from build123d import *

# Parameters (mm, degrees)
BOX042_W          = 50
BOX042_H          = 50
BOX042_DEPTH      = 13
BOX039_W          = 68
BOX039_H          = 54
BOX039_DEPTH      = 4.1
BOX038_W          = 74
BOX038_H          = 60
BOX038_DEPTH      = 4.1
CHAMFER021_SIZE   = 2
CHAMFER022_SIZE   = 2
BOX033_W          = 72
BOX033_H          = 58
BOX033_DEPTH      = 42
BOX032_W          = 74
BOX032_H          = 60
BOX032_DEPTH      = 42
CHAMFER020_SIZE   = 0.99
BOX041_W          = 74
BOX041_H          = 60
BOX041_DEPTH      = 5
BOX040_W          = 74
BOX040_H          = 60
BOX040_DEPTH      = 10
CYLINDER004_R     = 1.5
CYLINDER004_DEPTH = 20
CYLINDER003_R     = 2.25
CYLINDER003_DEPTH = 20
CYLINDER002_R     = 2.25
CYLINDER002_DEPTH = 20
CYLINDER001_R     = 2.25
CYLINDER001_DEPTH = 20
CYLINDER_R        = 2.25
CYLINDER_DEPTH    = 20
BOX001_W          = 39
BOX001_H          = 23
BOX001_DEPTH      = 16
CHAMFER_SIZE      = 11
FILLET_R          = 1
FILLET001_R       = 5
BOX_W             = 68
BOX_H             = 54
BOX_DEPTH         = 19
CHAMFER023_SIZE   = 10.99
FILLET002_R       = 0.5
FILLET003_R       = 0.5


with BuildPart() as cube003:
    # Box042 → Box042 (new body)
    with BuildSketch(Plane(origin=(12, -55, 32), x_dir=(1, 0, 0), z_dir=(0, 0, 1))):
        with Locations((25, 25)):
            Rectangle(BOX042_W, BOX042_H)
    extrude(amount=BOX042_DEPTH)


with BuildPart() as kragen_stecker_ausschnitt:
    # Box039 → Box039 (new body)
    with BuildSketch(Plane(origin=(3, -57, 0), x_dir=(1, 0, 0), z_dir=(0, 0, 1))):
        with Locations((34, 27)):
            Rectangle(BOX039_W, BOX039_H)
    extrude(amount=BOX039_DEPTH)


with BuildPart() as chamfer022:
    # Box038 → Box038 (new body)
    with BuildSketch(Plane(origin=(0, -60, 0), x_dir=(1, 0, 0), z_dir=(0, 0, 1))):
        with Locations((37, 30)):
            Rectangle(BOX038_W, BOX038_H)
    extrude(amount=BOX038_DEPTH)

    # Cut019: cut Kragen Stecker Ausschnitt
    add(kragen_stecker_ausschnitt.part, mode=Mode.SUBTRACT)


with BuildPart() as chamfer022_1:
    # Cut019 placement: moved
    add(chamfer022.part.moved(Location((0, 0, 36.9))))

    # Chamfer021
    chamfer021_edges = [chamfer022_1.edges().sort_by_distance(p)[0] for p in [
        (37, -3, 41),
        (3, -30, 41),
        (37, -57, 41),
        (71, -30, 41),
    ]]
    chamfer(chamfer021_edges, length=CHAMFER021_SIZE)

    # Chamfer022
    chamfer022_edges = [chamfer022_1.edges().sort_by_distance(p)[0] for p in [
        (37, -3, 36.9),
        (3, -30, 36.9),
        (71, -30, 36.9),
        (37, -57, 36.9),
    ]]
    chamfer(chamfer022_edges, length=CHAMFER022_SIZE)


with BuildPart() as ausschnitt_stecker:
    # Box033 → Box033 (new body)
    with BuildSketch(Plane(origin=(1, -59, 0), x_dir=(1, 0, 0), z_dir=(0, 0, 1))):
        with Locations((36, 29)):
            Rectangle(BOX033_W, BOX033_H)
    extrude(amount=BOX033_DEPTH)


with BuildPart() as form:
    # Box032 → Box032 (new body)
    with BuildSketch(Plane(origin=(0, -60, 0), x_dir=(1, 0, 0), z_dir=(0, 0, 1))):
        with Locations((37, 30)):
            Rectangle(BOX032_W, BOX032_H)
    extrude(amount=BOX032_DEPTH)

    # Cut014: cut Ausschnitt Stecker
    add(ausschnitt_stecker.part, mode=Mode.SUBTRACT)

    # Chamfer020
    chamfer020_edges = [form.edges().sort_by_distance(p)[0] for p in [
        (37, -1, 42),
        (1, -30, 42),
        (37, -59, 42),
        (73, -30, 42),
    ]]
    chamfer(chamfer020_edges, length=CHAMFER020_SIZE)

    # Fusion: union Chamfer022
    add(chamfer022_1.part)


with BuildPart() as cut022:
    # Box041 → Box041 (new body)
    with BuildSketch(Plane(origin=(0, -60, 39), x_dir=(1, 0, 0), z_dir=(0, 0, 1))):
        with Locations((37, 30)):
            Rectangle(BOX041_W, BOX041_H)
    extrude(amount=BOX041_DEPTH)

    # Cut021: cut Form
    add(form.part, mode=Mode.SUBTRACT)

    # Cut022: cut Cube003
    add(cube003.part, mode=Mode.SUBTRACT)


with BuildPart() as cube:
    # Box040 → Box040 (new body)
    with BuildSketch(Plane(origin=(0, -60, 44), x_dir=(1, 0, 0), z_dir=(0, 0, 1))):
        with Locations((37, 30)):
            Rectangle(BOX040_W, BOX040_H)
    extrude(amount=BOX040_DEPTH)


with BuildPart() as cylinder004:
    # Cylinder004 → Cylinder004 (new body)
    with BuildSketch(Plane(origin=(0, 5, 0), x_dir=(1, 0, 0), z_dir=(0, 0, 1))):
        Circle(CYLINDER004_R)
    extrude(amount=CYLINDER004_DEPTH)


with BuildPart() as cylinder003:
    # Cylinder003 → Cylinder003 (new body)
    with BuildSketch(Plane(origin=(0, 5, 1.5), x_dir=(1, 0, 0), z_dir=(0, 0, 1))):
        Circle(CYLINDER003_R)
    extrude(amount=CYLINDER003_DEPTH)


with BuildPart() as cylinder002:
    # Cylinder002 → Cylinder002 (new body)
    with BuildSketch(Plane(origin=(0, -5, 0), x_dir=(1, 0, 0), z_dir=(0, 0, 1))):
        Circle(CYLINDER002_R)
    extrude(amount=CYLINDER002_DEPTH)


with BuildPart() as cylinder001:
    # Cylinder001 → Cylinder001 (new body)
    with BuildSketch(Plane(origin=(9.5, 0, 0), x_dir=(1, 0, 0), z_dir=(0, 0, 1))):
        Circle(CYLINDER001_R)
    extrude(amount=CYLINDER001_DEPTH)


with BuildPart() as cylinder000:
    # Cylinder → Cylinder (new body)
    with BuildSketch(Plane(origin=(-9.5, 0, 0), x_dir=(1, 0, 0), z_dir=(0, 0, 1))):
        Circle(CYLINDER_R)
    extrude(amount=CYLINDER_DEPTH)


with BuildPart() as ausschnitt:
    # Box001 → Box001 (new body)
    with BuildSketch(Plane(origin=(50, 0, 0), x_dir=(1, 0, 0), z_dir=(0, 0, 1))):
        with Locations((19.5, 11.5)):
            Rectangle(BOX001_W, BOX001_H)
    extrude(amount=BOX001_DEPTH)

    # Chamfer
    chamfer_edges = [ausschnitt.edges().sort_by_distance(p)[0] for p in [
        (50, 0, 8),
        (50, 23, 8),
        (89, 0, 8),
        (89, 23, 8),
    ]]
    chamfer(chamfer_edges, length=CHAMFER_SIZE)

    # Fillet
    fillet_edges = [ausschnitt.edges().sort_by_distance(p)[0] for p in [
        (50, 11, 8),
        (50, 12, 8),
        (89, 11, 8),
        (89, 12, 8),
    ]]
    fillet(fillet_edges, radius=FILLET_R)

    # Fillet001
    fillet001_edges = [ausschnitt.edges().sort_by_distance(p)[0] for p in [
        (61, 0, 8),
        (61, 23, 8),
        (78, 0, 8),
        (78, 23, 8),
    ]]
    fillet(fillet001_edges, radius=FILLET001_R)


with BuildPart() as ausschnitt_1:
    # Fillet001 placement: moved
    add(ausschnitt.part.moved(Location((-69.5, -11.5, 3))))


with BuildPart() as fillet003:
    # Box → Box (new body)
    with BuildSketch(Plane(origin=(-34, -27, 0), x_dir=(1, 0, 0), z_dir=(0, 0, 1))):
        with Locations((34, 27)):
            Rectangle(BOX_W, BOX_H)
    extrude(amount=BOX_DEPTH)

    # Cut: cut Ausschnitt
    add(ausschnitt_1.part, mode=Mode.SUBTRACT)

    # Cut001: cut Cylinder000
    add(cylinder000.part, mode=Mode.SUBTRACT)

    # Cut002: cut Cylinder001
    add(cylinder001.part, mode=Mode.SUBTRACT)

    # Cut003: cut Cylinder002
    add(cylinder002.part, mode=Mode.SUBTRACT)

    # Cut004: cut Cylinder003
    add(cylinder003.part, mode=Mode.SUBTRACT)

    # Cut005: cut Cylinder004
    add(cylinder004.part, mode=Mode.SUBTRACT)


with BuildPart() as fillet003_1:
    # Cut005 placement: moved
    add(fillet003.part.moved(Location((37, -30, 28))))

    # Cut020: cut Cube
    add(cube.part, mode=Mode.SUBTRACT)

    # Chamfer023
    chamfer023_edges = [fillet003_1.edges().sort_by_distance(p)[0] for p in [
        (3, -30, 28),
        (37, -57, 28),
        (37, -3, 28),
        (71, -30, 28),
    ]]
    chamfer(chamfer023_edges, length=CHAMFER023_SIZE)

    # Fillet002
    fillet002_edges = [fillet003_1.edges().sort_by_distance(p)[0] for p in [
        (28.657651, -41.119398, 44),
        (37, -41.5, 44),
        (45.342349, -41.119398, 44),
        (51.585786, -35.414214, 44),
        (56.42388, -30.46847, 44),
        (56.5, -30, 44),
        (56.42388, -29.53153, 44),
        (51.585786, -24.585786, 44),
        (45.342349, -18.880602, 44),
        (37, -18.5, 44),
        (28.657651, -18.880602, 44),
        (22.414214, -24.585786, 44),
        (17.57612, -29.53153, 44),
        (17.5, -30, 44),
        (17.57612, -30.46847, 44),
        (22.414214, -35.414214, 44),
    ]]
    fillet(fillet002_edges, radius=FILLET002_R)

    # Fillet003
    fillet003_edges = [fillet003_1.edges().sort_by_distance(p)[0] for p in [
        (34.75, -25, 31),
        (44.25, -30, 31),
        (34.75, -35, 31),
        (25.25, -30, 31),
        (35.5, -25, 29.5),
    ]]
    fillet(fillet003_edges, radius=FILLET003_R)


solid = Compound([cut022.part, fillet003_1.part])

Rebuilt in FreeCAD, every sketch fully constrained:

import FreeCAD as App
import Part
import Sketcher

V = App.Vector
Q = App.Units.Quantity


def edges_at(feature, points):
    """Names of the edges that pass closest to the given points."""
    edges = feature.Shape.Edges
    near = lambda p: min(range(len(edges)), key=lambda i: edges[i].distToShape(Part.Vertex(*p))[0])
    return sorted({f"Edge{near(p) + 1}" for p in points})

doc = App.newDocument("Part")
body = doc.addObject("PartDesign::Body", "Body")

sketch1 = body.newObject("Sketcher::SketchObject", "Sketch")
sketch1.AttachmentSupport = (doc.getObject("XY_Plane"), [""])
sketch1.MapMode = "FlatFace"
sketch1.AttachmentOffset = App.Placement(V(0, 0, 32), App.Rotation())
sketch1.addGeometry([
    Part.LineSegment(V(12, -5, 0), V(12, -55, 0)),
    Part.LineSegment(V(12, -55, 0), V(62, -55, 0)),
    Part.LineSegment(V(62, -55, 0), V(62, -5, 0)),
    Part.LineSegment(V(62, -5, 0), V(12, -5, 0)),
], False)
sketch1.addConstraint([
    Sketcher.Constraint("Coincident", 0, 2, 1, 1),
    Sketcher.Constraint("Coincident", 1, 2, 2, 1),
    Sketcher.Constraint("Coincident", 2, 2, 3, 1),
    Sketcher.Constraint("Coincident", 3, 2, 0, 1),
    Sketcher.Constraint("Vertical", 0),
    Sketcher.Constraint("Horizontal", 1),
    Sketcher.Constraint("Vertical", 2),
    Sketcher.Constraint("Horizontal", 3),
    Sketcher.Constraint("Equal", 3, 0),
    Sketcher.Constraint("DistanceX", 1, 1, 1, 2, Q("50 mm")),
    Sketcher.Constraint("DistanceX", -1, 1, 0, 2, Q("12 mm")),
    Sketcher.Constraint("DistanceY", 0, 2, -1, 1, Q("55 mm")),
])
pad1 = body.newObject("PartDesign::Pad", "Pad")
pad1.Profile = sketch1
pad1.Length = 13
body2 = doc.addObject("PartDesign::Body", "Body001")

sketch2 = body2.newObject("Sketcher::SketchObject", "Sketch001")
sketch2.AttachmentSupport = (doc.getObject("XY_Plane001"), [""])
sketch2.MapMode = "FlatFace"
sketch2.addGeometry([
    Part.LineSegment(V(3, -3, 0), V(3, -57, 0)),
    Part.LineSegment(V(3, -57, 0), V(71, -57, 0)),
    Part.LineSegment(V(71, -57, 0), V(71, -3, 0)),
    Part.LineSegment(V(71, -3, 0), V(3, -3, 0)),
], False)
sketch2.addConstraint([
    Sketcher.Constraint("Coincident", 0, 2, 1, 1),
    Sketcher.Constraint("Coincident", 1, 2, 2, 1),
    Sketcher.Constraint("Coincident", 2, 2, 3, 1),
    Sketcher.Constraint("Coincident", 3, 2, 0, 1),
    Sketcher.Constraint("Vertical", 0),
    Sketcher.Constraint("Horizontal", 1),
    Sketcher.Constraint("Vertical", 2),
    Sketcher.Constraint("Horizontal", 3),
    Sketcher.Constraint("DistanceX", 1, 1, 1, 2, Q("68 mm")),
    Sketcher.Constraint("DistanceY", 0, 2, 0, 1, Q("54 mm")),
    Sketcher.Constraint("DistanceX", -1, 1, 0, 2, Q("3 mm")),
    Sketcher.Constraint("DistanceY", 0, 2, -1, 1, Q("57 mm")),
])
pad2 = body2.newObject("PartDesign::Pad", "Pad001")
pad2.Profile = sketch2
pad2.Length = 4.1
body3 = doc.addObject("PartDesign::Body", "Body002")

sketch3 = body3.newObject("Sketcher::SketchObject", "Sketch002")
sketch3.AttachmentSupport = (doc.getObject("XY_Plane002"), [""])
sketch3.MapMode = "FlatFace"
sketch3.addGeometry([
    Part.LineSegment(V(0, 0, 0), V(0, -60, 0)),
    Part.LineSegment(V(0, -60, 0), V(74, -60, 0)),
    Part.LineSegment(V(74, -60, 0), V(74, 0, 0)),
    Part.LineSegment(V(74, 0, 0), V(0, 0, 0)),
], False)
sketch3.addConstraint([
    Sketcher.Constraint("Coincident", 0, 2, 1, 1),
    Sketcher.Constraint("Coincident", 1, 2, 2, 1),
    Sketcher.Constraint("Coincident", 2, 2, 3, 1),
    Sketcher.Constraint("Coincident", 3, 2, 0, 1),
    Sketcher.Constraint("Vertical", 0),
    Sketcher.Constraint("Horizontal", 1),
    Sketcher.Constraint("Vertical", 2),
    Sketcher.Constraint("Horizontal", 3),
    Sketcher.Constraint("Coincident", 3, 2, -1, 1),
    Sketcher.Constraint("DistanceX", 1, 1, 1, 2, Q("74 mm")),
    Sketcher.Constraint("DistanceY", 0, 2, 0, 1, Q("60 mm")),
])
pad3 = body3.newObject("PartDesign::Pad", "Pad002")
pad3.Profile = sketch3
pad3.Length = 4.1
doc.recompute()

boolean = body3.newObject("PartDesign::Boolean", "Boolean")
boolean.Type = "Cut"
boolean.addObjects([body2])
body4 = doc.addObject("PartDesign::Body", "Body003")
doc.recompute()

body3.Placement = App.Placement(V(0, 0, 36.9), App.Rotation(V(0, 0, 1), 0))
boolean2 = body4.newObject("PartDesign::Boolean", "Boolean001")
boolean2.Type = "Fuse"
boolean2.addObjects([body3])
doc.recompute()

chamfer = body4.newObject("PartDesign::Chamfer", "Chamfer")
chamfer.Base = (boolean2, edges_at(boolean2, [
    (37, -3, 41),
    (3, -30, 41),
    (37, -57, 41),
    (71, -30, 41),
]))
chamfer.Size = 2
doc.recompute()

chamfer2 = body4.newObject("PartDesign::Chamfer", "Chamfer001")
chamfer2.Base = (chamfer, edges_at(chamfer, [
    (37, -3, 36.9),
    (3, -30, 36.9),
    (71, -30, 36.9),
    (37, -57, 36.9),
]))
chamfer2.Size = 2
body5 = doc.addObject("PartDesign::Body", "Body004")

sketch4 = body5.newObject("Sketcher::SketchObject", "Sketch003")
sketch4.AttachmentSupport = (doc.getObject("XY_Plane004"), [""])
sketch4.MapMode = "FlatFace"
sketch4.addGeometry([
    Part.LineSegment(V(1, -1, 0), V(1, -59, 0)),
    Part.LineSegment(V(1, -59, 0), V(73, -59, 0)),
    Part.LineSegment(V(73, -59, 0), V(73, -1, 0)),
    Part.LineSegment(V(73, -1, 0), V(1, -1, 0)),
], False)
sketch4.addConstraint([
    Sketcher.Constraint("Coincident", 0, 2, 1, 1),
    Sketcher.Constraint("Coincident", 1, 2, 2, 1),
    Sketcher.Constraint("Coincident", 2, 2, 3, 1),
    Sketcher.Constraint("Coincident", 3, 2, 0, 1),
    Sketcher.Constraint("Vertical", 0),
    Sketcher.Constraint("Horizontal", 1),
    Sketcher.Constraint("Vertical", 2),
    Sketcher.Constraint("Horizontal", 3),
    Sketcher.Constraint("DistanceX", 1, 1, 1, 2, Q("72 mm")),
    Sketcher.Constraint("DistanceY", 0, 2, 0, 1, Q("58 mm")),
    Sketcher.Constraint("DistanceX", -1, 1, 0, 2, Q("1 mm")),
    Sketcher.Constraint("DistanceY", 0, 2, -1, 1, Q("59 mm")),
])
pad4 = body5.newObject("PartDesign::Pad", "Pad003")
pad4.Profile = sketch4
pad4.Length = 42
body6 = doc.addObject("PartDesign::Body", "Body005")

sketch5 = body6.newObject("Sketcher::SketchObject", "Sketch004")
sketch5.AttachmentSupport = (doc.getObject("XY_Plane005"), [""])
sketch5.MapMode = "FlatFace"
sketch5.addGeometry([
    Part.LineSegment(V(0, 0, 0), V(0, -60, 0)),
    Part.LineSegment(V(0, -60, 0), V(74, -60, 0)),
    Part.LineSegment(V(74, -60, 0), V(74, 0, 0)),
    Part.LineSegment(V(74, 0, 0), V(0, 0, 0)),
], False)
sketch5.addConstraint([
    Sketcher.Constraint("Coincident", 0, 2, 1, 1),
    Sketcher.Constraint("Coincident", 1, 2, 2, 1),
    Sketcher.Constraint("Coincident", 2, 2, 3, 1),
    Sketcher.Constraint("Coincident", 3, 2, 0, 1),
    Sketcher.Constraint("Vertical", 0),
    Sketcher.Constraint("Horizontal", 1),
    Sketcher.Constraint("Vertical", 2),
    Sketcher.Constraint("Horizontal", 3),
    Sketcher.Constraint("Coincident", 3, 2, -1, 1),
    Sketcher.Constraint("DistanceX", 1, 1, 1, 2, Q("74 mm")),
    Sketcher.Constraint("DistanceY", 0, 2, 0, 1, Q("60 mm")),
])
pad5 = body6.newObject("PartDesign::Pad", "Pad004")
pad5.Profile = sketch5
pad5.Length = 42
doc.recompute()

boolean3 = body6.newObject("PartDesign::Boolean", "Boolean002")
boolean3.Type = "Cut"
boolean3.addObjects([body5])
doc.recompute()

chamfer3 = body6.newObject("PartDesign::Chamfer", "Chamfer002")
chamfer3.Base = (boolean3, edges_at(boolean3, [
    (37, -1, 42),
    (1, -30, 42),
    (37, -59, 42),
    (73, -30, 42),
]))
chamfer3.Size = 0.99
doc.recompute()

boolean4 = body6.newObject("PartDesign::Boolean", "Boolean003")
boolean4.Type = "Fuse"
boolean4.addObjects([body4])
body7 = doc.addObject("PartDesign::Body", "Body006")

sketch6 = body7.newObject("Sketcher::SketchObject", "Sketch005")
sketch6.AttachmentSupport = (doc.getObject("XY_Plane006"), [""])
sketch6.MapMode = "FlatFace"
sketch6.AttachmentOffset = App.Placement(V(0, 0, 39), App.Rotation())
sketch6.addGeometry([
    Part.LineSegment(V(0, 0, 0), V(0, -60, 0)),
    Part.LineSegment(V(0, -60, 0), V(74, -60, 0)),
    Part.LineSegment(V(74, -60, 0), V(74, 0, 0)),
    Part.LineSegment(V(74, 0, 0), V(0, 0, 0)),
], False)
sketch6.addConstraint([
    Sketcher.Constraint("Coincident", 0, 2, 1, 1),
    Sketcher.Constraint("Coincident", 1, 2, 2, 1),
    Sketcher.Constraint("Coincident", 2, 2, 3, 1),
    Sketcher.Constraint("Coincident", 3, 2, 0, 1),
    Sketcher.Constraint("Vertical", 0),
    Sketcher.Constraint("Horizontal", 1),
    Sketcher.Constraint("Vertical", 2),
    Sketcher.Constraint("Horizontal", 3),
    Sketcher.Constraint("Coincident", 3, 2, -1, 1),
    Sketcher.Constraint("DistanceX", 1, 1, 1, 2, Q("74 mm")),
    Sketcher.Constraint("DistanceY", 0, 2, 0, 1, Q("60 mm")),
])
pad6 = body7.newObject("PartDesign::Pad", "Pad005")
pad6.Profile = sketch6
pad6.Length = 5
doc.recompute()

boolean5 = body7.newObject("PartDesign::Boolean", "Boolean004")
boolean5.Type = "Cut"
boolean5.addObjects([body6])
doc.recompute()

boolean6 = body7.newObject("PartDesign::Boolean", "Boolean005")
boolean6.Type = "Cut"
boolean6.addObjects([body])
body8 = doc.addObject("PartDesign::Body", "Body007")

sketch7 = body8.newObject("Sketcher::SketchObject", "Sketch006")
sketch7.AttachmentSupport = (doc.getObject("XY_Plane007"), [""])
sketch7.MapMode = "FlatFace"
sketch7.AttachmentOffset = App.Placement(V(0, 0, 44), App.Rotation())
sketch7.addGeometry([
    Part.LineSegment(V(0, 0, 0), V(0, -60, 0)),
    Part.LineSegment(V(0, -60, 0), V(74, -60, 0)),
    Part.LineSegment(V(74, -60, 0), V(74, 0, 0)),
    Part.LineSegment(V(74, 0, 0), V(0, 0, 0)),
], False)
sketch7.addConstraint([
    Sketcher.Constraint("Coincident", 0, 2, 1, 1),
    Sketcher.Constraint("Coincident", 1, 2, 2, 1),
    Sketcher.Constraint("Coincident", 2, 2, 3, 1),
    Sketcher.Constraint("Coincident", 3, 2, 0, 1),
    Sketcher.Constraint("Vertical", 0),
    Sketcher.Constraint("Horizontal", 1),
    Sketcher.Constraint("Vertical", 2),
    Sketcher.Constraint("Horizontal", 3),
    Sketcher.Constraint("Coincident", 3, 2, -1, 1),
    Sketcher.Constraint("DistanceX", 1, 1, 1, 2, Q("74 mm")),
    Sketcher.Constraint("DistanceY", 0, 2, 0, 1, Q("60 mm")),
])
pad7 = body8.newObject("PartDesign::Pad", "Pad006")
pad7.Profile = sketch7
pad7.Length = 10
body9 = doc.addObject("PartDesign::Body", "Body008")

sketch8 = body9.newObject("Sketcher::SketchObject", "Sketch007")
sketch8.AttachmentSupport = (doc.getObject("XY_Plane008"), [""])
sketch8.MapMode = "FlatFace"
sketch8.addGeometry(Part.Circle(V(0, 5, 0), V(0, 0, 1), 1.5), False)
sketch8.addConstraint([
    Sketcher.Constraint("PointOnObject", 0, 3, -2),
    Sketcher.Constraint("Diameter", 0, Q("3 mm")),
    Sketcher.Constraint("DistanceY", -1, 1, 0, 3, Q("5 mm")),
])
pad8 = body9.newObject("PartDesign::Pad", "Pad007")
pad8.Profile = sketch8
pad8.Length = 20
body10 = doc.addObject("PartDesign::Body", "Body009")

sketch9 = body10.newObject("Sketcher::SketchObject", "Sketch008")
sketch9.AttachmentSupport = (doc.getObject("XY_Plane009"), [""])
sketch9.MapMode = "FlatFace"
sketch9.AttachmentOffset = App.Placement(V(0, 0, 1.5), App.Rotation())
sketch9.addGeometry(Part.Circle(V(0, 5, 0), V(0, 0, 1), 2.2), False)
sketch9.addConstraint([
    Sketcher.Constraint("PointOnObject", 0, 3, -2),
    Sketcher.Constraint("Diameter", 0, Q("4.5 mm")),
    Sketcher.Constraint("DistanceY", -1, 1, 0, 3, Q("5 mm")),
])
pad9 = body10.newObject("PartDesign::Pad", "Pad008")
pad9.Profile = sketch9
pad9.Length = 20
body11 = doc.addObject("PartDesign::Body", "Body010")

sketch10 = body11.newObject("Sketcher::SketchObject", "Sketch009")
sketch10.AttachmentSupport = (doc.getObject("XY_Plane010"), [""])
sketch10.MapMode = "FlatFace"
sketch10.addGeometry(Part.Circle(V(0, -5, 0), V(0, 0, 1), 2.2), False)
sketch10.addConstraint([
    Sketcher.Constraint("PointOnObject", 0, 3, -2),
    Sketcher.Constraint("Diameter", 0, Q("4.5 mm")),
    Sketcher.Constraint("DistanceY", 0, 3, -1, 1, Q("5 mm")),
])
pad10 = body11.newObject("PartDesign::Pad", "Pad009")
pad10.Profile = sketch10
pad10.Length = 20
body12 = doc.addObject("PartDesign::Body", "Body011")

sketch11 = body12.newObject("Sketcher::SketchObject", "Sketch010")
sketch11.AttachmentSupport = (doc.getObject("XY_Plane011"), [""])
sketch11.MapMode = "FlatFace"
sketch11.addGeometry(Part.Circle(V(9.5, 0, 0), V(0, 0, 1), 2.2), False)
sketch11.addConstraint([
    Sketcher.Constraint("PointOnObject", 0, 3, -1),
    Sketcher.Constraint("Diameter", 0, Q("4.5 mm")),
    Sketcher.Constraint("DistanceX", -1, 1, 0, 3, Q("9.5 mm")),
])
pad11 = body12.newObject("PartDesign::Pad", "Pad010")
pad11.Profile = sketch11
pad11.Length = 20
body13 = doc.addObject("PartDesign::Body", "Body012")

sketch12 = body13.newObject("Sketcher::SketchObject", "Sketch011")
sketch12.AttachmentSupport = (doc.getObject("XY_Plane012"), [""])
sketch12.MapMode = "FlatFace"
sketch12.addGeometry(Part.Circle(V(-9.5, 0, 0), V(0, 0, 1), 2.2), False)
sketch12.addConstraint([
    Sketcher.Constraint("PointOnObject", 0, 3, -1),
    Sketcher.Constraint("Diameter", 0, Q("4.5 mm")),
    Sketcher.Constraint("DistanceX", 0, 3, -1, 1, Q("9.5 mm")),
])
pad12 = body13.newObject("PartDesign::Pad", "Pad011")
pad12.Profile = sketch12
pad12.Length = 20
body14 = doc.addObject("PartDesign::Body", "Body013")

sketch13 = body14.newObject("Sketcher::SketchObject", "Sketch012")
sketch13.AttachmentSupport = (doc.getObject("XY_Plane013"), [""])
sketch13.MapMode = "FlatFace"
sketch13.addGeometry([
    Part.LineSegment(V(50, 23, 0), V(50, 0, 0)),
    Part.LineSegment(V(50, 0, 0), V(89, 0, 0)),
    Part.LineSegment(V(89, 0, 0), V(89, 23, 0)),
    Part.LineSegment(V(89, 23, 0), V(50, 23, 0)),
], False)
sketch13.addConstraint([
    Sketcher.Constraint("Coincident", 0, 2, 1, 1),
    Sketcher.Constraint("Coincident", 1, 2, 2, 1),
    Sketcher.Constraint("Coincident", 2, 2, 3, 1),
    Sketcher.Constraint("Coincident", 3, 2, 0, 1),
    Sketcher.Constraint("Vertical", 0),
    Sketcher.Constraint("Horizontal", 1),
    Sketcher.Constraint("Vertical", 2),
    Sketcher.Constraint("Horizontal", 3),
    Sketcher.Constraint("PointOnObject", 0, 2, -1),
    Sketcher.Constraint("DistanceX", 1, 1, 1, 2, Q("39 mm")),
    Sketcher.Constraint("DistanceY", 0, 2, 0, 1, Q("23 mm")),
    Sketcher.Constraint("DistanceX", -1, 1, 0, 2, Q("50 mm")),
])
pad13 = body14.newObject("PartDesign::Pad", "Pad012")
pad13.Profile = sketch13
pad13.Length = 16
doc.recompute()

chamfer4 = body14.newObject("PartDesign::Chamfer", "Chamfer003")
chamfer4.Base = (pad13, edges_at(pad13, [
    (50, 0, 8),
    (50, 23, 8),
    (89, 0, 8),
    (89, 23, 8),
]))
chamfer4.Size = 11
doc.recompute()

fillet = body14.newObject("PartDesign::Fillet", "Fillet")
fillet.Base = (chamfer4, edges_at(chamfer4, [
    (50, 11, 8),
    (50, 12, 8),
    (89, 11, 8),
    (89, 12, 8),
]))
fillet.Radius = 1
doc.recompute()

fillet2 = body14.newObject("PartDesign::Fillet", "Fillet001")
fillet2.Base = (fillet, edges_at(fillet, [
    (61, 0, 8),
    (61, 23, 8),
    (78, 0, 8),
    (78, 23, 8),
]))
fillet2.Radius = 5
body15 = doc.addObject("PartDesign::Body", "Body014")
doc.recompute()

body14.Placement = App.Placement(V(-69.5, -11.5, 3), App.Rotation(V(0, 0, 1), 0))
boolean7 = body15.newObject("PartDesign::Boolean", "Boolean006")
boolean7.Type = "Fuse"
boolean7.addObjects([body14])
body16 = doc.addObject("PartDesign::Body", "Body015")

sketch14 = body16.newObject("Sketcher::SketchObject", "Sketch013")
sketch14.AttachmentSupport = (doc.getObject("XY_Plane015"), [""])
sketch14.MapMode = "FlatFace"
sketch14.addGeometry([
    Part.LineSegment(V(-34, 27, 0), V(-34, -27, 0)),
    Part.LineSegment(V(-34, -27, 0), V(34, -27, 0)),
    Part.LineSegment(V(34, -27, 0), V(34, 27, 0)),
    Part.LineSegment(V(34, 27, 0), V(-34, 27, 0)),
], False)
sketch14.addConstraint([
    Sketcher.Constraint("Coincident", 0, 2, 1, 1),
    Sketcher.Constraint("Coincident", 1, 2, 2, 1),
    Sketcher.Constraint("Coincident", 2, 2, 3, 1),
    Sketcher.Constraint("Coincident", 3, 2, 0, 1),
    Sketcher.Constraint("Vertical", 0),
    Sketcher.Constraint("Horizontal", 1),
    Sketcher.Constraint("Vertical", 2),
    Sketcher.Constraint("Horizontal", 3),
    Sketcher.Constraint("Symmetric", 0, 2, 2, 2, -1, 1),
    Sketcher.Constraint("DistanceX", 1, 1, 1, 2, Q("68 mm")),
    Sketcher.Constraint("DistanceY", 0, 2, 0, 1, Q("54 mm")),
])
pad14 = body16.newObject("PartDesign::Pad", "Pad013")
pad14.Profile = sketch14
pad14.Length = 19
doc.recompute()

boolean8 = body16.newObject("PartDesign::Boolean", "Boolean007")
boolean8.Type = "Cut"
boolean8.addObjects([body15])
doc.recompute()

boolean9 = body16.newObject("PartDesign::Boolean", "Boolean008")
boolean9.Type = "Cut"
boolean9.addObjects([body13])
doc.recompute()

boolean10 = body16.newObject("PartDesign::Boolean", "Boolean009")
boolean10.Type = "Cut"
boolean10.addObjects([body12])
doc.recompute()

boolean11 = body16.newObject("PartDesign::Boolean", "Boolean010")
boolean11.Type = "Cut"
boolean11.addObjects([body11])
doc.recompute()

boolean12 = body16.newObject("PartDesign::Boolean", "Boolean011")
boolean12.Type = "Cut"
boolean12.addObjects([body10])
doc.recompute()

boolean13 = body16.newObject("PartDesign::Boolean", "Boolean012")
boolean13.Type = "Cut"
boolean13.addObjects([body9])
body17 = doc.addObject("PartDesign::Body", "Body016")
doc.recompute()

body16.Placement = App.Placement(V(37, -30, 28), App.Rotation(V(0, 0, 1), 0))
boolean14 = body17.newObject("PartDesign::Boolean", "Boolean013")
boolean14.Type = "Fuse"
boolean14.addObjects([body16])
doc.recompute()

boolean15 = body17.newObject("PartDesign::Boolean", "Boolean014")
boolean15.Type = "Cut"
boolean15.addObjects([body8])
doc.recompute()

chamfer5 = body17.newObject("PartDesign::Chamfer", "Chamfer004")
chamfer5.Base = (boolean15, edges_at(boolean15, [
    (3, -30, 28),
    (37, -57, 28),
    (37, -3, 28),
    (71, -30, 28),
]))
chamfer5.Size = 10.99
doc.recompute()

fillet3 = body17.newObject("PartDesign::Fillet", "Fillet002")
fillet3.Base = (chamfer5, edges_at(chamfer5, [
    (28.658, -41.119, 44),
    (37, -41.5, 44),
    (45.342, -41.119, 44),
    (51.586, -35.414, 44),
    (56.424, -30.468, 44),
    (56.5, -30, 44),
    (56.424, -29.532, 44),
    (51.586, -24.586, 44),
    (45.342, -18.881, 44),
    (37, -18.5, 44),
    (28.658, -18.881, 44),
    (22.414, -24.586, 44),
    (17.576, -29.532, 44),
    (17.5, -30, 44),
    (17.576, -30.468, 44),
    (22.414, -35.414, 44),
]))
fillet3.Radius = 0.5
doc.recompute()

fillet4 = body17.newObject("PartDesign::Fillet", "Fillet003")
fillet4.Base = (fillet3, edges_at(fillet3, [
    (34.75, -25, 31),
    (44.25, -30, 31),
    (34.75, -35, 31),
    (25.25, -30, 31),
    (35.5, -25, 29.5),
]))
fillet4.Radius = 0.5

doc.recompute()
